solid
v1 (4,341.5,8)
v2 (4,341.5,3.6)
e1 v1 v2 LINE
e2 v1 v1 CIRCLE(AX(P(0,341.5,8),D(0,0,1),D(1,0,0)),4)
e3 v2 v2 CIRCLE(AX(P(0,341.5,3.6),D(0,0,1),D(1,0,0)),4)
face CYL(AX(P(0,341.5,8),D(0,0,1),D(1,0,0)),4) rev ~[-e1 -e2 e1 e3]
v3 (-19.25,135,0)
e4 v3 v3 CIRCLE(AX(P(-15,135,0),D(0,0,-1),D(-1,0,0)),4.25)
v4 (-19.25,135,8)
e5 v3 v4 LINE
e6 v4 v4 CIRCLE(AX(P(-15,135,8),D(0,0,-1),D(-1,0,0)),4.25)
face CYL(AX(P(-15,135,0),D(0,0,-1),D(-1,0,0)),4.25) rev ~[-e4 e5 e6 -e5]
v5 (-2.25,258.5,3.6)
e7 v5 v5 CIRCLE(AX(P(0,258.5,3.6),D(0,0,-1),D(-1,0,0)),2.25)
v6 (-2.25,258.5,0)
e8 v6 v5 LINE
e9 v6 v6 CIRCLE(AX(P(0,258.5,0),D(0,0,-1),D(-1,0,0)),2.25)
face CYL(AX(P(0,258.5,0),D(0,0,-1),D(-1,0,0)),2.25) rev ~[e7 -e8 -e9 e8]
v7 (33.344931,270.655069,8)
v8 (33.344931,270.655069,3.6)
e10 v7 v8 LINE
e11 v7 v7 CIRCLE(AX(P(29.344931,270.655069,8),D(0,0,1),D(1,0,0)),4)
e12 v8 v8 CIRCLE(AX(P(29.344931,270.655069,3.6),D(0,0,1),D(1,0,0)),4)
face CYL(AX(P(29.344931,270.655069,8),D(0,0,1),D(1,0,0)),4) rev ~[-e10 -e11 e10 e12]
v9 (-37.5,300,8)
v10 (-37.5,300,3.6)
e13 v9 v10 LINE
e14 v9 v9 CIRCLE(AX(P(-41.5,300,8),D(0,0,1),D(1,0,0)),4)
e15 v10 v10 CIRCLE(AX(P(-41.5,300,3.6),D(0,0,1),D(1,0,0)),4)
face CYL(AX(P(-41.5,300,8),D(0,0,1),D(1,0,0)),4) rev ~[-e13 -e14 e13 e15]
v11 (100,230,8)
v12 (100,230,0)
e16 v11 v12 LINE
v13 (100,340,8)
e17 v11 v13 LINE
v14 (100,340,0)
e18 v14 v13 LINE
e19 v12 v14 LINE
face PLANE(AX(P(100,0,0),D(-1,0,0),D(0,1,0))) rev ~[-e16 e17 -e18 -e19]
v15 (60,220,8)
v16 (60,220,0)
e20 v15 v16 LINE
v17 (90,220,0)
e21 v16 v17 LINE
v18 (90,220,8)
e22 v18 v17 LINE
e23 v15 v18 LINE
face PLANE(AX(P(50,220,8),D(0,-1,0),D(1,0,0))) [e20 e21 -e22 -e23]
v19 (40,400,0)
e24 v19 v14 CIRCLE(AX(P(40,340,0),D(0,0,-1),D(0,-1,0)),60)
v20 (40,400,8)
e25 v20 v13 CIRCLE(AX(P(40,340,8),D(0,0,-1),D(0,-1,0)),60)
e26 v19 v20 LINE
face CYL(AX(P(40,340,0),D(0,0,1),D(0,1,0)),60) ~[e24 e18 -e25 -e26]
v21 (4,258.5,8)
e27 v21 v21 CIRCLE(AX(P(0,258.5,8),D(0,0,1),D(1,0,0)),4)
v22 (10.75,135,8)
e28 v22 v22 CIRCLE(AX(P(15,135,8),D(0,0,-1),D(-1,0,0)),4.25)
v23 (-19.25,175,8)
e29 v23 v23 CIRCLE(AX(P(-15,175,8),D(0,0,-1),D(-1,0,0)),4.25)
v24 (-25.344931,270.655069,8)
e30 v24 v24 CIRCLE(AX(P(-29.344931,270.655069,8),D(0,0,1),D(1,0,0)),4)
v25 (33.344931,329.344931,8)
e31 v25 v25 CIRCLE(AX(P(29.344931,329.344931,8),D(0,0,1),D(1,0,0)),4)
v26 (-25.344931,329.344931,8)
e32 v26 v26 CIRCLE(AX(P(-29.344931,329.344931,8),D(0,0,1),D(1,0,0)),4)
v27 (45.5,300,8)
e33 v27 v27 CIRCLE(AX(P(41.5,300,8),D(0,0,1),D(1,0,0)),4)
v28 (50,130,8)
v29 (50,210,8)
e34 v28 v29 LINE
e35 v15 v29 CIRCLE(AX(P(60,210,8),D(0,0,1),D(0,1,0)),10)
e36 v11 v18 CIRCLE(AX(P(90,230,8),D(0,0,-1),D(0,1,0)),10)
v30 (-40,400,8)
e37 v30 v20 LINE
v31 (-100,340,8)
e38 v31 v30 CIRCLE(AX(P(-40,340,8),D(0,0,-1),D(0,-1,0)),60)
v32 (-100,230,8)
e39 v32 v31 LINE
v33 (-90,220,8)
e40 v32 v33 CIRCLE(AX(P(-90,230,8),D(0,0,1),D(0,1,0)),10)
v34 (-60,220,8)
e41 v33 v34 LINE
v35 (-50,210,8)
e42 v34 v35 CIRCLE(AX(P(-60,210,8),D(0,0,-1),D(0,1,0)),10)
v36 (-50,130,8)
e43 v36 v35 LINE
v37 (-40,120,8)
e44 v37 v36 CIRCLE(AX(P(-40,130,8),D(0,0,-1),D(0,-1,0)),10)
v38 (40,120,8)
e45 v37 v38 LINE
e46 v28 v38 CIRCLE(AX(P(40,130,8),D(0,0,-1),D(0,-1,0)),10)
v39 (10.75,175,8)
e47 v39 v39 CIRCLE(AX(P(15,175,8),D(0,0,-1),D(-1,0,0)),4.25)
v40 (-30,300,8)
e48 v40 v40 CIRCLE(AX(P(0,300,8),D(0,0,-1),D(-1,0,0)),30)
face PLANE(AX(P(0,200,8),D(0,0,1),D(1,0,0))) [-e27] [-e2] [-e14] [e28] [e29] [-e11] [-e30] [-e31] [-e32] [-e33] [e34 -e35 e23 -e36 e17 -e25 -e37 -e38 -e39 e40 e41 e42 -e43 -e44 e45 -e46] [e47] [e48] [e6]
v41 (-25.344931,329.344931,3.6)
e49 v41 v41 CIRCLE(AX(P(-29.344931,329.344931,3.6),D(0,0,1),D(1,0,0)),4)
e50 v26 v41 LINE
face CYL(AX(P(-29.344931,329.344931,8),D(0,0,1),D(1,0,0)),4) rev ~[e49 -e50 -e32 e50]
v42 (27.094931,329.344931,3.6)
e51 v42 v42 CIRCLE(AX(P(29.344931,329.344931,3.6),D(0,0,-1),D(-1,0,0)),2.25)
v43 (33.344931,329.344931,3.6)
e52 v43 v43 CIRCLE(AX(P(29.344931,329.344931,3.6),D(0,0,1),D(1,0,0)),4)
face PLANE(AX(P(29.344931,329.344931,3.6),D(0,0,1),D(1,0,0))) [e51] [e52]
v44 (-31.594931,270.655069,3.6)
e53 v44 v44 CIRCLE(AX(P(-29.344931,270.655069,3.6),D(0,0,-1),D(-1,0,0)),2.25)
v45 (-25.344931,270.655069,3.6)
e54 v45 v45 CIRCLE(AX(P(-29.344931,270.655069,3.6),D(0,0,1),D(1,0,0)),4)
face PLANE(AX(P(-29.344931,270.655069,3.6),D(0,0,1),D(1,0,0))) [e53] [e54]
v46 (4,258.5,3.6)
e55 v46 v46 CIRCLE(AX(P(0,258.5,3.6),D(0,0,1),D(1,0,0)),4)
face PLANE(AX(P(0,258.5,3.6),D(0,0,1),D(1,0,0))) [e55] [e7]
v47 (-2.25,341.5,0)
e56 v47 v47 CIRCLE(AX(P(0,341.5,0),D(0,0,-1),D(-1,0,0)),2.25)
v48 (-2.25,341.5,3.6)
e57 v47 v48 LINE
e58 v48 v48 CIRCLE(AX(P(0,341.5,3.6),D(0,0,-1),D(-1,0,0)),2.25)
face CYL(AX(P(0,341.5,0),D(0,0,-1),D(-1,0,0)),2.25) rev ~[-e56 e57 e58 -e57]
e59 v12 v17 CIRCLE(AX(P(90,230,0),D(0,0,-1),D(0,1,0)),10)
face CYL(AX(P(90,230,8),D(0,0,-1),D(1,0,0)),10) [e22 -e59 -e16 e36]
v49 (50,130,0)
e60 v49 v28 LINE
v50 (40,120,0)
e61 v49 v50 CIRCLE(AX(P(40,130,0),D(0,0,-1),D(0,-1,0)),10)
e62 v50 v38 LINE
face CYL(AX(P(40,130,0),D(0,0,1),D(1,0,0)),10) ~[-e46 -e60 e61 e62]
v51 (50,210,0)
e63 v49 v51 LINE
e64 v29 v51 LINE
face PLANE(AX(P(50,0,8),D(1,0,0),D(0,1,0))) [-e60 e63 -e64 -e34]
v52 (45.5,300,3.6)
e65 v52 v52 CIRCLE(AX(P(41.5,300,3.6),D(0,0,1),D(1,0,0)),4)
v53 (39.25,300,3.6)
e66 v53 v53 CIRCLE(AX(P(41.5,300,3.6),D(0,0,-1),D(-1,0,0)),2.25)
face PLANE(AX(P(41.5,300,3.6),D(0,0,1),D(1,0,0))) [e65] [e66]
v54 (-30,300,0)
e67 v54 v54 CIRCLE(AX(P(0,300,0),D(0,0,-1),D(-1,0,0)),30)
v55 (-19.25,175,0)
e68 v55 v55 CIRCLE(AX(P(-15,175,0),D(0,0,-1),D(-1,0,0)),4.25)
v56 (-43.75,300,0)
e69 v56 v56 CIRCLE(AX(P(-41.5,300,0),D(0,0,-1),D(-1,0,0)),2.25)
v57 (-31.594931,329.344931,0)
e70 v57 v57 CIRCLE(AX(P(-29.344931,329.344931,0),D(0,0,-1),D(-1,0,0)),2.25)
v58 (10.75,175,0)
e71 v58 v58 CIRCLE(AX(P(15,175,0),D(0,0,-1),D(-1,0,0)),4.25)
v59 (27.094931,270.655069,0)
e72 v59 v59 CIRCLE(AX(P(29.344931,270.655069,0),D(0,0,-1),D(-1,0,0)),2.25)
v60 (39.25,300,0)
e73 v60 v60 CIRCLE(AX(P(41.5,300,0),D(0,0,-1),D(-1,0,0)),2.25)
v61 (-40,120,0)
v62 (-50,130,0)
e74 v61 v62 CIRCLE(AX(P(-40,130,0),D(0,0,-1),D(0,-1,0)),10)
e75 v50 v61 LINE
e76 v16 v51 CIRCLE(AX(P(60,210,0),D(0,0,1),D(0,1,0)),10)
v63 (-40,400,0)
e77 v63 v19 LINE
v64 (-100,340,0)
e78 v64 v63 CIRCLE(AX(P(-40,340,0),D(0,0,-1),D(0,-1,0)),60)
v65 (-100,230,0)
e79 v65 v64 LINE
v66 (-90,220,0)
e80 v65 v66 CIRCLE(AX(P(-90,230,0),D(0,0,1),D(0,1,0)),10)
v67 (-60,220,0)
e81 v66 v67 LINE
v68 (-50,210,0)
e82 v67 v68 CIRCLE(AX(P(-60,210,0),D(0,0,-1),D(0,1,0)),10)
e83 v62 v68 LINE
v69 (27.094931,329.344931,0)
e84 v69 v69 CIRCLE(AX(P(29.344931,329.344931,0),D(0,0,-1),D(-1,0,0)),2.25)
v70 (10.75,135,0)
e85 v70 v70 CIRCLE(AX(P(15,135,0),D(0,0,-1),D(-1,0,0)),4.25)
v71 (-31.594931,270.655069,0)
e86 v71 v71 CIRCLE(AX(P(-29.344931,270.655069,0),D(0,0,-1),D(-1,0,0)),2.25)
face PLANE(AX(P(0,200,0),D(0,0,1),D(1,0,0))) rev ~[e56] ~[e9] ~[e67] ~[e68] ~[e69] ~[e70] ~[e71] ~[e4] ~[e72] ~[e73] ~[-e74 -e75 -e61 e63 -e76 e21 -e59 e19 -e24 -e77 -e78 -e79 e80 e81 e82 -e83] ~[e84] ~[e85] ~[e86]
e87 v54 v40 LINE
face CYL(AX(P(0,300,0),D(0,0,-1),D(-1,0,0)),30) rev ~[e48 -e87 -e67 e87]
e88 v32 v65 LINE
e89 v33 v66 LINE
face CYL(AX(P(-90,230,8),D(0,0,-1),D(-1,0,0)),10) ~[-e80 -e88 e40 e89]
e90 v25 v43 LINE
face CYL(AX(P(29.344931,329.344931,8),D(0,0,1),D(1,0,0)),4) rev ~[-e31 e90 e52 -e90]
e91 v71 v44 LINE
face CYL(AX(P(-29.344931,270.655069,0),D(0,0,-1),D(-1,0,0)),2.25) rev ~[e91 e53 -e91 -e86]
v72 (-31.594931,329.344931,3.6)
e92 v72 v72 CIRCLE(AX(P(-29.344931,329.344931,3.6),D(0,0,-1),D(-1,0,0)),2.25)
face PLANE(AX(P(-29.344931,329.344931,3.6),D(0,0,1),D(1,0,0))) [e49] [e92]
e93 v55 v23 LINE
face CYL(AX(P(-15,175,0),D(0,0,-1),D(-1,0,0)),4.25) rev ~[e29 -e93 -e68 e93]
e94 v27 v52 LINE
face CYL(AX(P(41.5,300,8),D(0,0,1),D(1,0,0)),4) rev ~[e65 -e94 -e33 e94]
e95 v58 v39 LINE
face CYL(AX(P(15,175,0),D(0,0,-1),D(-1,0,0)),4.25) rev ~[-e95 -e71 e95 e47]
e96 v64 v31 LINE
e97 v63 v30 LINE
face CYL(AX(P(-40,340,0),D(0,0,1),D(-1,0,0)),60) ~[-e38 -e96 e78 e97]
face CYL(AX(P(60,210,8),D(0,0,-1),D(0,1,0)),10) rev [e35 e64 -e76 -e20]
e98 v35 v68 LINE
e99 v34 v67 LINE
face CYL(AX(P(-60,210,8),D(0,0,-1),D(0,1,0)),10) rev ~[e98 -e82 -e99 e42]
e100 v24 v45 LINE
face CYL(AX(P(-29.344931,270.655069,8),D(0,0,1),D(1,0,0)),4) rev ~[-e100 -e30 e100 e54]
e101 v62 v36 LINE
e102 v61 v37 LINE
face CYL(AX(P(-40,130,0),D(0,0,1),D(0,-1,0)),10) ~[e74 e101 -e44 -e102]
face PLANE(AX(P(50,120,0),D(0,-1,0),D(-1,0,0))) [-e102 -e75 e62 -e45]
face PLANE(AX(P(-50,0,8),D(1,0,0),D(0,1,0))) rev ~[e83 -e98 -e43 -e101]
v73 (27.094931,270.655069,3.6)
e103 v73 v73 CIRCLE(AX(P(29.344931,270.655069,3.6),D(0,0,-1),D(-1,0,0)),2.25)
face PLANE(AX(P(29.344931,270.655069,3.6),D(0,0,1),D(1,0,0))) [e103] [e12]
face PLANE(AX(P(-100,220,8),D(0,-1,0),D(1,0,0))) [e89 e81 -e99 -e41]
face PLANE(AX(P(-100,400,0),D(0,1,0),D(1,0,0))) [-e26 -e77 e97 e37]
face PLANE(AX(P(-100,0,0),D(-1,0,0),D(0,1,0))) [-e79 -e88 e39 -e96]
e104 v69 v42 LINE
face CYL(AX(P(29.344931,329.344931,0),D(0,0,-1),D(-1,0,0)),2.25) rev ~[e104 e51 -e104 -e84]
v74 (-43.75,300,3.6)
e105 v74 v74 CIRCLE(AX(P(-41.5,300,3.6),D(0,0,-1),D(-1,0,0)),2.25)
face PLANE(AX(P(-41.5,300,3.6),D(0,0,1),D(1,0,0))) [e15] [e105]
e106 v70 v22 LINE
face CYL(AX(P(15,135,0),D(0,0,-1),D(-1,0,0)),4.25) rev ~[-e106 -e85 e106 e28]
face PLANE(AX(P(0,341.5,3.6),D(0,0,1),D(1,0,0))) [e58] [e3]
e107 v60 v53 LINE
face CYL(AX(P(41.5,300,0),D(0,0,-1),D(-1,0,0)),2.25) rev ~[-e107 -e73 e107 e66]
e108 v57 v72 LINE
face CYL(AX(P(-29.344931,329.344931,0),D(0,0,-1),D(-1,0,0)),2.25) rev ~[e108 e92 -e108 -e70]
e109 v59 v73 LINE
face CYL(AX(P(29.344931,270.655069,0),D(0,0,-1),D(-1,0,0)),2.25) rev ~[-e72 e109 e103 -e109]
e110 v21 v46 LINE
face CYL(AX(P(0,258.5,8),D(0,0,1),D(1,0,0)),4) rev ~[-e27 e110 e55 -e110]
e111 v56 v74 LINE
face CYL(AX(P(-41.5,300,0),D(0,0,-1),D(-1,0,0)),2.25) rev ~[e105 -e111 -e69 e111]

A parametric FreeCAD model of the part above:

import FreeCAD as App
import Part
import Sketcher
from FreeCAD import Vector
Q = App.Units.Quantity


def edges_at(feature, points):
    """Names of the edges that pass closest to the given points."""
    edges = feature.Shape.Edges
    near = lambda p: min(range(len(edges)), key=lambda i: edges[i].distToShape(Part.Vertex(*p))[0])
    return sorted({f"Edge{near(p) + 1}" for p in points})


def add_polygon(sketch, points):
    """Adds a closed chain of lines whose ends are joined by coincident constraints."""
    first, n = sketch.GeometryCount, len(points)
    for a, b in zip(points, points[1:] + points[:1]):
        sketch.addGeometry(Part.LineSegment(App.Vector(*a, 0), App.Vector(*b, 0)), False)
    for i in range(n):
        sketch.addConstraint(Sketcher.Constraint("Coincident", first + i, 2, first + (i + 1) % n, 1))

doc = App.newDocument("Part")
body = doc.addObject("PartDesign::Body", "Body")

# Sketch on XY plane
sketch1 = body.newObject("Sketcher::SketchObject", "Sketch")
sketch1.AttachmentSupport = (doc.getObject("XY_Plane"), [""])
sketch1.MapMode = "FlatFace"
add_polygon(sketch1, [(-100, 400), (-100, 0), (100, 0), (100, 400)])  # lines 0-3
sketch1.addConstraint([
    Sketcher.Constraint("Vertical", 0),
    Sketcher.Constraint("Horizontal", 1),
    Sketcher.Constraint("Vertical", 2),
    Sketcher.Constraint("Horizontal", 3),
    Sketcher.Constraint("Symmetric", 0, 2, 1, 2, -1, 1),
    Sketcher.Constraint("DistanceX", 1, 1, 1, 2, Q("200 mm")),
    Sketcher.Constraint("DistanceY", 0, 2, 0, 1, Q("400 mm")),
])
pad1 = body.newObject("PartDesign::Pad", "Pad")
pad1.Profile = sketch1
pad1.Length = 8

# Sketch on XY plane
sketch2 = body.newObject("Sketcher::SketchObject", "Sketch001")
sketch2.AttachmentSupport = (doc.getObject("XY_Plane"), [""])
sketch2.MapMode = "FlatFace"
sketch2.addGeometry(Part.Circle(Vector(0, 300, 0), Vector(0, 0, 1), 30), False)
sketch2.addConstraint([
    Sketcher.Constraint("PointOnObject", 0, 3, -2),
    Sketcher.Constraint("Diameter", 0, Q("60 mm")),
    Sketcher.Constraint("DistanceY", -1, 1, 0, 3, Q("300 mm")),
])
pocket1 = body.newObject("PartDesign::Pocket", "Pocket")
pocket1.Profile = sketch2
pocket1.Length = 10
pocket1.Reversed = True

# Sketch on XY plane
sketch3 = body.newObject("Sketcher::SketchObject", "Sketch002")
sketch3.AttachmentSupport = (doc.getObject("XY_Plane"), [""])
sketch3.MapMode = "FlatFace"
sketch3.addGeometry([
    Part.Circle(Vector(0, 341.5, 0), Vector(0, 0, 1), 2.25),  # 0
    Part.Circle(Vector(-29.344931, 329.344931, 0), Vector(0, 0, 1), 2.25),  # 1
    Part.Circle(Vector(-41.5, 300, 0), Vector(0, 0, 1), 2.25),  # 2
    Part.Circle(Vector(-29.344931, 270.655069, 0), Vector(0, 0, 1), 2.25),  # 3
    Part.Circle(Vector(0, 258.5, 0), Vector(0, 0, 1), 2.25),  # 4
    Part.Circle(Vector(29.344931, 270.655069, 0), Vector(0, 0, 1), 2.25),  # 5
    Part.Circle(Vector(41.5, 300, 0), Vector(0, 0, 1), 2.25),  # 6
    Part.Circle(Vector(29.344931, 329.344931, 0), Vector(0, 0, 1), 2.25),  # 7
], False)
sketch3.addConstraint([
    Sketcher.Constraint("Equal", 0, 1),
    Sketcher.Constraint("Equal", 1, 2),
    Sketcher.Constraint("Equal", 2, 3),
    Sketcher.Constraint("Equal", 3, 4),
    Sketcher.Constraint("Equal", 4, 5),
    Sketcher.Constraint("Equal", 5, 6),
    Sketcher.Constraint("Equal", 6, 7),
    Sketcher.Constraint("Symmetric", 3, 3, 5, 3, -2),
    Sketcher.Constraint("Symmetric", 2, 3, 6, 3, -2),
    Sketcher.Constraint("Symmetric", 1, 3, 7, 3, -2),
    Sketcher.Constraint("PointOnObject", 0, 3, -2),
    Sketcher.Constraint("PointOnObject", 4, 3, -2),
    Sketcher.Constraint("Vertical", 1, 3, 3, 3),
    Sketcher.Constraint("Diameter", 0, Q("4.5 mm")),
    Sketcher.Constraint("DistanceY", -1, 1, 2, 3, Q("300 mm")),
    Sketcher.Constraint("DistanceY", 4, 3, 0, 3, Q("83 mm")),
    Sketcher.Constraint("DistanceY", -1, 1, 0, 3, Q("341.5 mm")),
    Sketcher.Constraint("DistanceX", 2, 3, -1, 1, Q("41.5 mm")),
    Sketcher.Constraint("DistanceX", 1, 3, -1, 1, Q("29.344931 mm")),
    Sketcher.Constraint("DistanceY", -1, 1, 1, 3, Q("329.344931 mm")),
    Sketcher.Constraint("DistanceY", -1, 1, 3, 3, Q("270.655069 mm")),
])
pocket2 = body.newObject("PartDesign::Pocket", "Pocket001")
pocket2.Profile = sketch3
pocket2.Length = 10
pocket2.Reversed = True

# Sketch on XY plane
sketch4 = body.newObject("Sketcher::SketchObject", "Sketch003")
sketch4.AttachmentSupport = (doc.getObject("XY_Plane"), [""])
sketch4.MapMode = "FlatFace"
sketch4.AttachmentOffset = App.Placement(Vector(0, 0, 8), App.Rotation())
sketch4.addGeometry([
    Part.Circle(Vector(29.344931, 329.344931, 0), Vector(0, 0, 1), 4),  # 0
    Part.Circle(Vector(41.5, 300, 0), Vector(0, 0, 1), 4),  # 1
    Part.Circle(Vector(29.344931, 270.655069, 0), Vector(0, 0, 1), 4),  # 2
    Part.Circle(Vector(0, 258.5, 0), Vector(0, 0, 1), 4),  # 3
    Part.Circle(Vector(-29.344931, 270.655069, 0), Vector(0, 0, 1), 4),  # 4
    Part.Circle(Vector(-41.5, 300, 0), Vector(0, 0, 1), 4),  # 5
    Part.Circle(Vector(-29.344931, 329.344931, 0), Vector(0, 0, 1), 4),  # 6
    Part.Circle(Vector(0, 341.5, 0), Vector(0, 0, 1), 4),  # 7
], False)
sketch4.addConstraint([
    Sketcher.Constraint("Equal", 0, 1),
    Sketcher.Constraint("Equal", 1, 2),
    Sketcher.Constraint("Equal", 2, 3),
    Sketcher.Constraint("Equal", 3, 4),
    Sketcher.Constraint("Equal", 4, 5),
    Sketcher.Constraint("Equal", 5, 6),
    Sketcher.Constraint("Equal", 6, 7),
    Sketcher.Constraint("Symmetric", 2, 3, 4, 3, -2),
    Sketcher.Constraint("Symmetric", 1, 3, 5, 3, -2),
    Sketcher.Constraint("Symmetric", 0, 3, 6, 3, -2),
    Sketcher.Constraint("PointOnObject", 3, 3, -2),
    Sketcher.Constraint("PointOnObject", 7, 3, -2),
    Sketcher.Constraint("Vertical", 0, 3, 2, 3),
    Sketcher.Constraint("Diameter", 0, Q("8 mm")),
    Sketcher.Constraint("DistanceY", -1, 1, 1, 3, Q("300 mm")),
    Sketcher.Constraint("DistanceX", 5, 3, 1, 3, Q("83 mm")),
    Sketcher.Constraint("DistanceY", -1, 1, 3, 3, Q("258.5 mm")),
    Sketcher.Constraint("DistanceY", -1, 1, 7, 3, Q("341.5 mm")),
    Sketcher.Constraint("DistanceX", -1, 1, 0, 3, Q("29.344931 mm")),
    Sketcher.Constraint("DistanceY", -1, 1, 0, 3, Q("329.344931 mm")),
    Sketcher.Constraint("DistanceY", -1, 1, 2, 3, Q("270.655069 mm")),
])
pocket3 = body.newObject("PartDesign::Pocket", "Pocket002")
pocket3.Profile = sketch4
pocket3.Length = 4.4
doc.recompute()

fillet = body.newObject("PartDesign::Fillet", "Fillet")
fillet.Base = (pocket3, edges_at(pocket3, [(100, 400, 4), (-100, 400, 4)]))
fillet.Radius = 60

# Sketch on XY plane
sketch5 = body.newObject("Sketcher::SketchObject", "Sketch004")
sketch5.AttachmentSupport = (doc.getObject("XY_Plane"), [""])
sketch5.MapMode = "FlatFace"
sketch5.addGeometry([
    Part.Circle(Vector(15, 25, 0), Vector(0, 0, 1), 4.25),  # 0
    Part.Circle(Vector(-15, 25, 0), Vector(0, 0, 1), 4.25),  # 1
    Part.Circle(Vector(15, 65, 0), Vector(0, 0, 1), 4.25),  # 2
    Part.Circle(Vector(-15, 65, 0), Vector(0, 0, 1), 4.25),  # 3
    Part.Circle(Vector(15, 175, 0), Vector(0, 0, 1), 4.25),  # 4
    Part.Circle(Vector(15, 135, 0), Vector(0, 0, 1), 4.25),  # 5
    Part.Circle(Vector(-15, 135, 0), Vector(0, 0, 1), 4.25),  # 6
    Part.Circle(Vector(-15, 175, 0), Vector(0, 0, 1), 4.25),  # 7
], False)
sketch5.addConstraint([
    Sketcher.Constraint("Equal", 0, 1),
    Sketcher.Constraint("Equal", 1, 2),
    Sketcher.Constraint("Equal", 2, 3),
    Sketcher.Constraint("Equal", 3, 4),
    Sketcher.Constraint("Equal", 4, 5),
    Sketcher.Constraint("Equal", 5, 6),
    Sketcher.Constraint("Equal", 6, 7),
    Sketcher.Constraint("Symmetric", 0, 3, 1, 3, -2),
    Sketcher.Constraint("Symmetric", 2, 3, 3, 3, -2),
    Sketcher.Constraint("Symmetric", 5, 3, 6, 3, -2),
    Sketcher.Constraint("Symmetric", 4, 3, 7, 3, -2),
    Sketcher.Constraint("Vertical", 0, 3, 2, 3),
    Sketcher.Constraint("Vertical", 2, 3, 4, 3),
    Sketcher.Constraint("Vertical", 4, 3, 5, 3),
    Sketcher.Constraint("Diameter", 0, Q("8.5 mm")),
    Sketcher.Constraint("DistanceX", -1, 1, 0, 3, Q("15 mm")),
    Sketcher.Constraint("DistanceY", -1, 1, 0, 3, Q("25 mm")),
    Sketcher.Constraint("DistanceY", -1, 1, 2, 3, Q("65 mm")),
    Sketcher.Constraint("DistanceY", -1, 1, 4, 3, Q("175 mm")),
    Sketcher.Constraint("DistanceY", -1, 1, 5, 3, Q("135 mm")),
])
pocket4 = body.newObject("PartDesign::Pocket", "Pocket003")
pocket4.Profile = sketch5
pocket4.Length = 10
pocket4.Reversed = True

# Sketch on XY plane
sketch6 = body.newObject("Sketcher::SketchObject", "Sketch005")
sketch6.AttachmentSupport = (doc.getObject("XY_Plane"), [""])
sketch6.MapMode = "FlatFace"
sketch6.AttachmentOffset = App.Placement(Vector(0, 0, 8), App.Rotation())
add_polygon(sketch6, [(-100, 220), (-100, 0), (-50, 0), (-50, 220)])  # lines 0-3
add_polygon(sketch6, [(50, 220), (50, 0), (100, 0), (100, 220)])  # lines 4-7
sketch6.addConstraint([
    Sketcher.Constraint("Vertical", 0),
    Sketcher.Constraint("Horizontal", 1),
    Sketcher.Constraint("Vertical", 2),
    Sketcher.Constraint("Horizontal", 3),
    Sketcher.Constraint("Vertical", 4),
    Sketcher.Constraint("Horizontal", 5),
    Sketcher.Constraint("Vertical", 6),
    Sketcher.Constraint("Horizontal", 7),
    Sketcher.Constraint("Symmetric", 1, 2, 4, 2, -1, 1),
    Sketcher.Constraint("Symmetric", 0, 2, 5, 2, -2),
    Sketcher.Constraint("Horizontal", 3, 2, 6, 2),
    Sketcher.Constraint("DistanceX", 1, 1, 1, 2, Q("50 mm")),
    Sketcher.Constraint("DistanceY", 0, 2, 0, 1, Q("220 mm")),
    Sketcher.Constraint("DistanceX", 0, 2, -1, 1, Q("100 mm")),
])
pocket5 = body.newObject("PartDesign::Pocket", "Pocket004")
pocket5.Profile = sketch6
pocket5.Length = 10
doc.recompute()

fillet2 = body.newObject("PartDesign::Fillet", "Fillet001")
fillet2.Base = (pocket5, edges_at(pocket5, [
    (100, 220, 4),
    (50, 220, 4),
    (-100, 220, 4),
    (-50, 220, 4),
]))
fillet2.Radius = 10

# Sketch on XY plane
sketch7 = body.newObject("Sketcher::SketchObject", "Sketch006")
sketch7.AttachmentSupport = (doc.getObject("XY_Plane"), [""])
sketch7.MapMode = "FlatFace"
add_polygon(sketch7, [(50, 120), (50, 0), (-50, 0), (-50, 120)])  # lines 0-3
sketch7.addConstraint([
    Sketcher.Constraint("Vertical", 0),
    Sketcher.Constraint("Horizontal", 1),
    Sketcher.Constraint("Vertical", 2),
    Sketcher.Constraint("Horizontal", 3),
    Sketcher.Constraint("Symmetric", 0, 2, 1, 2, -1, 1),
    Sketcher.Constraint("DistanceX", 1, 2, 1, 1, Q("100 mm")),
    Sketcher.Constraint("DistanceY", 0, 2, 0, 1, Q("120 mm")),
])
pocket6 = body.newObject("PartDesign::Pocket", "Pocket005")
pocket6.Profile = sketch7
pocket6.Length = 84
pocket6.Reversed = True
doc.recompute()

fillet3 = body.newObject("PartDesign::Fillet", "Fillet002")
fillet3.Base = (pocket6, edges_at(pocket6, [(50, 120, 4), (-50, 120, 4)]))
fillet3.Radius = 10

doc.recompute()
